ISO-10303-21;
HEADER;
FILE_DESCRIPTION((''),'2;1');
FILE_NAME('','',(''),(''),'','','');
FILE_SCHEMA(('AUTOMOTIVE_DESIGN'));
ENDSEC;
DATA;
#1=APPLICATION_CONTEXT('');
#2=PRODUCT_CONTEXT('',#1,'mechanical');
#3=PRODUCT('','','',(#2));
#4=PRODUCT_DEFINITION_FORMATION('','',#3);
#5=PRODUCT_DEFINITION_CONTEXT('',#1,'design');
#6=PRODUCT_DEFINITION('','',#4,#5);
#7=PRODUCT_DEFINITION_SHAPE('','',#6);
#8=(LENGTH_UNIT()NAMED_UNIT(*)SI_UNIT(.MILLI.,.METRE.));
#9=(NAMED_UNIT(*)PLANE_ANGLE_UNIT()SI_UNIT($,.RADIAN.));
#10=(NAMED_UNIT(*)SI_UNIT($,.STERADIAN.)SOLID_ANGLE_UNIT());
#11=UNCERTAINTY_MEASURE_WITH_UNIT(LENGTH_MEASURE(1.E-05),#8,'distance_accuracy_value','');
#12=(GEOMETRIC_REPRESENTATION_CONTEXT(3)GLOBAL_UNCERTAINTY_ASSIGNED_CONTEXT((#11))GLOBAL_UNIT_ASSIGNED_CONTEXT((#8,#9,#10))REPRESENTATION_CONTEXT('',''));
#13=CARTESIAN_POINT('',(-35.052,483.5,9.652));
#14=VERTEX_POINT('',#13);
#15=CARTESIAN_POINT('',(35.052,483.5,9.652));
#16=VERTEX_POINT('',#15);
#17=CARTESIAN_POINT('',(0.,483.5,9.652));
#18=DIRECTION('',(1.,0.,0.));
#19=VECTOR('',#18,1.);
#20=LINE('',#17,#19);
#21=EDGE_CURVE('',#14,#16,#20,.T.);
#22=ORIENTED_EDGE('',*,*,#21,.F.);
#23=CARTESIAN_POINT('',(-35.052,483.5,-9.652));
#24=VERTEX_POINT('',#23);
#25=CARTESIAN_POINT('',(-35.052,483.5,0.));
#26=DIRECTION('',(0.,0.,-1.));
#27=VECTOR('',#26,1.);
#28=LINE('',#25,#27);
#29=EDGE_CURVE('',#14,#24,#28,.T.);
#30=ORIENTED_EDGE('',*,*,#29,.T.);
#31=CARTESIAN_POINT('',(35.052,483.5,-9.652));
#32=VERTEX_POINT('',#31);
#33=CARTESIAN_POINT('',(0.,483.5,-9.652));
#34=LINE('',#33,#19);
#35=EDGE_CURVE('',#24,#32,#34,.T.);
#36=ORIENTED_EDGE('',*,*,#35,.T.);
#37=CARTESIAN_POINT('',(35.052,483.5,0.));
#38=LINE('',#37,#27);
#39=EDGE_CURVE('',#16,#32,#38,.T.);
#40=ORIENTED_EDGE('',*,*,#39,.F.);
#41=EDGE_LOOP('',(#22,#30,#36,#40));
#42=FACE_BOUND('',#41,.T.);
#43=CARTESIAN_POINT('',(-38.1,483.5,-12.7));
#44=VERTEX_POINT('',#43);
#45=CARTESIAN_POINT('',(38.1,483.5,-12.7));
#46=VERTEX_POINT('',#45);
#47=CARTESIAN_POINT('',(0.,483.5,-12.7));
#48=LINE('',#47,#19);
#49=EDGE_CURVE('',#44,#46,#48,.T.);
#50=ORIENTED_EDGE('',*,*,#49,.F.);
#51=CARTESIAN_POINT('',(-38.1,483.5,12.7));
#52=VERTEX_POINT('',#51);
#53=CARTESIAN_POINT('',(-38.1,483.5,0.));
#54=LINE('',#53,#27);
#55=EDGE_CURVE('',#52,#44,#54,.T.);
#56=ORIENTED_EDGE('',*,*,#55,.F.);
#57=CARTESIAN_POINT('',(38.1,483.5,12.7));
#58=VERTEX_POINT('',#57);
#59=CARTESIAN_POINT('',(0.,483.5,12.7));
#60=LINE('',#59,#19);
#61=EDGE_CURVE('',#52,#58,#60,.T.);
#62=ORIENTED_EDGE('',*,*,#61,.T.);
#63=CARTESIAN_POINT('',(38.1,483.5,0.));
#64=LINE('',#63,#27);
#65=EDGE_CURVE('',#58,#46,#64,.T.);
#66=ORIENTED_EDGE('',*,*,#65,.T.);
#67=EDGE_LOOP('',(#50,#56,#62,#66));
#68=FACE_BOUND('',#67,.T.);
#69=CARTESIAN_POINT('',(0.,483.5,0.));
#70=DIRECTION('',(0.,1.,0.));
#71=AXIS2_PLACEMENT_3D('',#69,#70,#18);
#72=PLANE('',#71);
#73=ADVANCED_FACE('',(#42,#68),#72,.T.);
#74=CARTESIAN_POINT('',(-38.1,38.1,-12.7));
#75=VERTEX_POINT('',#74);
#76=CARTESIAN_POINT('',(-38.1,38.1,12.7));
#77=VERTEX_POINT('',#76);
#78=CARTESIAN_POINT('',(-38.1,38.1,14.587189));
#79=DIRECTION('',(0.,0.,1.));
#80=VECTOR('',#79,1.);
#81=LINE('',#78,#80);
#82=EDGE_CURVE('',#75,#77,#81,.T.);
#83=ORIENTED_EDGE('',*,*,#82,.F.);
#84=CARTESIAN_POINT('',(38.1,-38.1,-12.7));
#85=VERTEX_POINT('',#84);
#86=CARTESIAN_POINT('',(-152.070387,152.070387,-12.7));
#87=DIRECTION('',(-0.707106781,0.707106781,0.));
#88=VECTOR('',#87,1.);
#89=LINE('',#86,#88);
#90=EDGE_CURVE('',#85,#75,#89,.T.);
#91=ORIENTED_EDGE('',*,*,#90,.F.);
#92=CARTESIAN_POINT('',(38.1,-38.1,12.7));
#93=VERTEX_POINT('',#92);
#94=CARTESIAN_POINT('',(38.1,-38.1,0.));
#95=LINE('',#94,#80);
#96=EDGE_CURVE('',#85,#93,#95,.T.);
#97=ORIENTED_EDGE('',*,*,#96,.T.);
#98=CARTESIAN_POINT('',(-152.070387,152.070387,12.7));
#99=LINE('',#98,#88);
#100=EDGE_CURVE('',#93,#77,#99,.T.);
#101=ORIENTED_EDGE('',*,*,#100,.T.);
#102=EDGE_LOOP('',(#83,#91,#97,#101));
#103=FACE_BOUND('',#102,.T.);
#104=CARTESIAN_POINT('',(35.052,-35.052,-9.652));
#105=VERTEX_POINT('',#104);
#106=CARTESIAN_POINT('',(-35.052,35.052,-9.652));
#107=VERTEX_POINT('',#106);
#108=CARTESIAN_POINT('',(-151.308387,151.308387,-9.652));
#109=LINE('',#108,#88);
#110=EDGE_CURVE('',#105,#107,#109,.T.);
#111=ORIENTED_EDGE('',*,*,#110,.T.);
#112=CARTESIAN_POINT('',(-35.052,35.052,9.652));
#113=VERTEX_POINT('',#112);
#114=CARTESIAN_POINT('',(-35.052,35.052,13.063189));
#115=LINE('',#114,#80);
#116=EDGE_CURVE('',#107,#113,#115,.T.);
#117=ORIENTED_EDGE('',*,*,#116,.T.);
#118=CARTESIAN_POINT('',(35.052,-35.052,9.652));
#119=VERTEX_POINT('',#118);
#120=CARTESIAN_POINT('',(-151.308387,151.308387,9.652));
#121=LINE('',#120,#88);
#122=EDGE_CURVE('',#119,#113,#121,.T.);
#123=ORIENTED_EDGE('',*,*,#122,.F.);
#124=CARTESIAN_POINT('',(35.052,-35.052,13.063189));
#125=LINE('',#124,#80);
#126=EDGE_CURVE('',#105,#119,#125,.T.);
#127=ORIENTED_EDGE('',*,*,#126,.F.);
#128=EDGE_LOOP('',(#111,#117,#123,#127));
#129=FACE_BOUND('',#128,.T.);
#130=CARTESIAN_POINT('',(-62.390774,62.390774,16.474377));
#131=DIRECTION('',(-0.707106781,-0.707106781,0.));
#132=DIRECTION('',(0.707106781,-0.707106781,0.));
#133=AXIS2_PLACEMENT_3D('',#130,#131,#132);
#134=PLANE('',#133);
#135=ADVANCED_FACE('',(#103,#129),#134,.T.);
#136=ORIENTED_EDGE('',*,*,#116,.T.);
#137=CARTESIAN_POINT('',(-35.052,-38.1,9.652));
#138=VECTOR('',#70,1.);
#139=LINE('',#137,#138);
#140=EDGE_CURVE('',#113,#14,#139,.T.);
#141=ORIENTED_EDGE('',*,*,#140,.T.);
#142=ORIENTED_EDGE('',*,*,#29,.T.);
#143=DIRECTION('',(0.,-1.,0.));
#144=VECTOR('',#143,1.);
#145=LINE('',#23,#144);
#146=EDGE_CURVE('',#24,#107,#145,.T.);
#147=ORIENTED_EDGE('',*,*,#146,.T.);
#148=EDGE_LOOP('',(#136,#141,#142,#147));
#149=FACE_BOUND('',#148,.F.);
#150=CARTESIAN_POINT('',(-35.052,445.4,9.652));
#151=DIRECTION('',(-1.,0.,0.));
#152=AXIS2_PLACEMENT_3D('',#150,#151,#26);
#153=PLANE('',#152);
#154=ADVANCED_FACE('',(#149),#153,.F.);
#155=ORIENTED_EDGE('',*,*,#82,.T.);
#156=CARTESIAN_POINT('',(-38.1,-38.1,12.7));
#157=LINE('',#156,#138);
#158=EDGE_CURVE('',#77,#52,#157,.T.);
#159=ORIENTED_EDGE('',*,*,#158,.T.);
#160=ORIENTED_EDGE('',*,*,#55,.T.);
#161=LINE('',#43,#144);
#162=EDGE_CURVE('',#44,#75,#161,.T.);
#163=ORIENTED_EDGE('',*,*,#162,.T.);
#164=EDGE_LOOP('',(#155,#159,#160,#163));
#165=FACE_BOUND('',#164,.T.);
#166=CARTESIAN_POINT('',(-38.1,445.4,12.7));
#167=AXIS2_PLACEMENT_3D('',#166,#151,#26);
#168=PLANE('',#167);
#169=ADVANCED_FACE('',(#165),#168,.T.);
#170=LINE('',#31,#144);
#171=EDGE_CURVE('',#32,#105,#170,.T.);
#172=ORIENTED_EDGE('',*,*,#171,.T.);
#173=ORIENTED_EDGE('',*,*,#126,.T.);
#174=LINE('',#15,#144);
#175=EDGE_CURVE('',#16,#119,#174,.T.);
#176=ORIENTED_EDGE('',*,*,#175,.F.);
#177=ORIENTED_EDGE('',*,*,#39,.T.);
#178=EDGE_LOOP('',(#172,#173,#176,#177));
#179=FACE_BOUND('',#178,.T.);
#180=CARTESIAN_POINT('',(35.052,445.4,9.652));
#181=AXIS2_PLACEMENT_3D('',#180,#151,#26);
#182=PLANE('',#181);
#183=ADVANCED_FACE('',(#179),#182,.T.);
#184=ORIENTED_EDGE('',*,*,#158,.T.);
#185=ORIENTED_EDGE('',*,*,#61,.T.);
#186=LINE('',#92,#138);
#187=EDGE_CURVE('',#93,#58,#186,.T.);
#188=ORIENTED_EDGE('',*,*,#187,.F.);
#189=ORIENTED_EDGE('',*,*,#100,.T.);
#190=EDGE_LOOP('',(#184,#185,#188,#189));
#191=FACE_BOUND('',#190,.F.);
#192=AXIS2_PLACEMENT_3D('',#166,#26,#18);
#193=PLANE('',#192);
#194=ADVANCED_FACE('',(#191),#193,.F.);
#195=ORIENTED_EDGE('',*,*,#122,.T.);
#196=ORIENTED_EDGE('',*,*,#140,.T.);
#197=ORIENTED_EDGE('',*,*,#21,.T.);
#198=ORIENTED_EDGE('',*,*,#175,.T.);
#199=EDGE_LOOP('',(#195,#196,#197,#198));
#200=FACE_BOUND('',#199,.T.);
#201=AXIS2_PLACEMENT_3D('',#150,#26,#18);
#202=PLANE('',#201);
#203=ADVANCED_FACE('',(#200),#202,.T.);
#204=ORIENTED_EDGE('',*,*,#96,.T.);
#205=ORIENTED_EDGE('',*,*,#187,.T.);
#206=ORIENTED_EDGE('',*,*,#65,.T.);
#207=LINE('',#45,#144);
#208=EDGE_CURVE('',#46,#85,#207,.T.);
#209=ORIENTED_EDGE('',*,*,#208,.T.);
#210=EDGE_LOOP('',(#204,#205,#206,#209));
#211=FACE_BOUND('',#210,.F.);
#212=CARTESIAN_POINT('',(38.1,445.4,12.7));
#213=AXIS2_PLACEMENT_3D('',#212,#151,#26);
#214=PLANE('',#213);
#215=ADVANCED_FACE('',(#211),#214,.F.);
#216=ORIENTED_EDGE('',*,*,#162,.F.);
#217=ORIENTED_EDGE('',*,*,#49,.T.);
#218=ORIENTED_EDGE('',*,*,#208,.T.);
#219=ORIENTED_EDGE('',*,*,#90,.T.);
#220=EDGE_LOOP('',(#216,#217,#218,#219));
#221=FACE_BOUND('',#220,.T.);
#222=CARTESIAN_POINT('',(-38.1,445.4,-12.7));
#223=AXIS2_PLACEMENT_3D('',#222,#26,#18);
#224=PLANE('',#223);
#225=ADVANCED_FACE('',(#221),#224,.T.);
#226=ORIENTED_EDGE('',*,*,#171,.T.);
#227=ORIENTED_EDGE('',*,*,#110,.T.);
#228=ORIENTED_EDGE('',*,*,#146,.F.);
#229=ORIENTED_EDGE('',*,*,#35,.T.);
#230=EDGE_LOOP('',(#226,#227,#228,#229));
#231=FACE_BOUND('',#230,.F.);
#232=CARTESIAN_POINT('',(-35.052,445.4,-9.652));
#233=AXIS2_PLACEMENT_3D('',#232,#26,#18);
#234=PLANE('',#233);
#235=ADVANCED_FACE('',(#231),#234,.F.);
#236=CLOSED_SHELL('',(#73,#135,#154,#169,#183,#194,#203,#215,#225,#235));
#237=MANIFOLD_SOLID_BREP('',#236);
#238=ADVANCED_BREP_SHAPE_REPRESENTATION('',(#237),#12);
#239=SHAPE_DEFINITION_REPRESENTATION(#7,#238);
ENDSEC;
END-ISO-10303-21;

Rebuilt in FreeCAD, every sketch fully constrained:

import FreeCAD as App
import Part
import Sketcher
Q = App.Units.Quantity


def add_polygon(sketch, points):
    """Adds a closed chain of lines whose ends are joined by coincident constraints."""
    first, n = sketch.GeometryCount, len(points)
    for a, b in zip(points, points[1:] + points[:1]):
        sketch.addGeometry(Part.LineSegment(App.Vector(*a, 0), App.Vector(*b, 0)), False)
    for i in range(n):
        sketch.addConstraint(Sketcher.Constraint("Coincident", first + i, 2, first + (i + 1) % n, 1))

doc = App.newDocument("Part")
body = doc.addObject("PartDesign::Body", "Body")

# Sketch on XZ plane
sketch1 = body.newObject("Sketcher::SketchObject", "Sketch")
sketch1.AttachmentSupport = (doc.getObject("XZ_Plane"), [""])
sketch1.MapMode = "FlatFace"
add_polygon(sketch1, [(-38, -13), (-38, 13), (38, 13), (38, -13)])  # lines 0-3
add_polygon(sketch1, [(35, 10), (-35, 10), (-35, -10), (35, -10)])  # lines 4-7
sketch1.addConstraint([
    Sketcher.Constraint("Vertical", 0),
    Sketcher.Constraint("Horizontal", 1),
    Sketcher.Constraint("Vertical", 2),
    Sketcher.Constraint("Horizontal", 3),
    Sketcher.Constraint("Horizontal", 4),
    Sketcher.Constraint("Vertical", 5),
    Sketcher.Constraint("Horizontal", 6),
    Sketcher.Constraint("Vertical", 7),
    Sketcher.Constraint("Symmetric", 0, 2, 2, 2, -1, 1),
    Sketcher.Constraint("Symmetric", 4, 2, 6, 2, -1, 1),
    Sketcher.Constraint("DistanceX", 1, 1, 1, 2, Q("3 in")),
    Sketcher.Constraint("DistanceY", 0, 1, 0, 2, Q("1 in")),
    Sketcher.Constraint("DistanceX", 4, 2, 4, 1, Q("2.76 in")),
    Sketcher.Constraint("DistanceY", 5, 2, 5, 1, Q("0.76 in")),
])
pad1 = body.newObject("PartDesign::Pad", "Pad")
pad1.Profile = sketch1
pad1.Length = 445.4
pad1.Reversed = True

# Sketch on XZ plane
sketch2 = body.newObject("Sketcher::SketchObject", "Sketch001")
sketch2.AttachmentSupport = (doc.getObject("XZ_Plane"), [""])
sketch2.MapMode = "FlatFace"
add_polygon(sketch2, [(-38, 13), (-38, -13), (38, -13), (38, 13)])  # lines 0-3
add_polygon(sketch2, [(35, -10), (-35, -10), (-35, 10), (35, 10)])  # lines 4-7
sketch2.addConstraint([
    Sketcher.Constraint("Vertical", 0),
    Sketcher.Constraint("Horizontal", 1),
    Sketcher.Constraint("Vertical", 2),
    Sketcher.Constraint("Horizontal", 3),
    Sketcher.Constraint("Horizontal", 4),
    Sketcher.Constraint("Vertical", 5),
    Sketcher.Constraint("Horizontal", 6),
    Sketcher.Constraint("Vertical", 7),
    Sketcher.Constraint("Symmetric", 0, 2, 2, 2, -1, 1),
    Sketcher.Constraint("Symmetric", 4, 2, 6, 2, -1, 1),
    Sketcher.Constraint("DistanceX", 1, 1, 1, 2, Q("3 in")),
    Sketcher.Constraint("DistanceY", 0, 2, 0, 1, Q("1 in")),
    Sketcher.Constraint("DistanceX", 4, 2, 4, 1, Q("2.76 in")),
    Sketcher.Constraint("DistanceY", 5, 1, 5, 2, Q("0.76 in")),
])
pad2 = body.newObject("PartDesign::Pad", "Pad001")
pad2.Profile = sketch2
pad2.Length = Q("1.5 in")

# Sketch on XZ plane
sketch3 = body.newObject("Sketcher::SketchObject", "Sketch002")
sketch3.AttachmentSupport = (doc.getObject("XZ_Plane"), [""])
sketch3.MapMode = "FlatFace"
sketch3.AttachmentOffset = App.Placement(App.Vector(0, 0, -445.4), App.Rotation())
add_polygon(sketch3, [(-38, -13), (-38, 13), (38, 13), (38, -13)])  # lines 0-3
add_polygon(sketch3, [(35, 10), (-35, 10), (-35, -10), (35, -10)])  # lines 4-7
sketch3.addConstraint([
    Sketcher.Constraint("Vertical", 0),
    Sketcher.Constraint("Horizontal", 1),
    Sketcher.Constraint("Vertical", 2),
    Sketcher.Constraint("Horizontal", 3),
    Sketcher.Constraint("Horizontal", 4),
    Sketcher.Constraint("Vertical", 5),
    Sketcher.Constraint("Horizontal", 6),
    Sketcher.Constraint("Vertical", 7),
    Sketcher.Constraint("Symmetric", 0, 2, 2, 2, -1, 1),
    Sketcher.Constraint("Symmetric", 4, 2, 6, 2, -1, 1),
    Sketcher.Constraint("DistanceX", 1, 1, 1, 2, Q("3 in")),
    Sketcher.Constraint("DistanceY", 0, 1, 0, 2, Q("1 in")),
    Sketcher.Constraint("DistanceX", 4, 2, 4, 1, Q("2.76 in")),
    Sketcher.Constraint("DistanceY", 5, 2, 5, 1, Q("0.76 in")),
])
pad3 = body.newObject("PartDesign::Pad", "Pad002")
pad3.Profile = sketch3
pad3.Length = Q("1.5 in")
pad3.Reversed = True

# Sketch on XY plane
sketch4 = body.newObject("Sketcher::SketchObject", "Sketch003")
sketch4.AttachmentSupport = (doc.getObject("XY_Plane"), [""])
sketch4.MapMode = "FlatFace"
sketch4.AttachmentOffset = App.Placement(App.Vector(0, 0, 16.474377), App.Rotation())
add_polygon(sketch4, [(130, -130), (-62, 62), (-159, -130)])  # lines 0-2
sketch4.addConstraint([
    Sketcher.Constraint("Horizontal", 2),
    Sketcher.Constraint("Angle", 0, Q("135 deg")),
    Sketcher.Constraint("DistanceX", 2, 1, 2, 2, Q("288.55552 mm")),
    Sketcher.Constraint("Distance", 0, Q("271.969871 mm")),
    Sketcher.Constraint("DistanceX", 0, 2, -1, 1, Q("62.390774 mm")),
    Sketcher.Constraint("DistanceY", -1, 1, 0, 2, Q("62.390774 mm")),
])
pocket1 = body.newObject("PartDesign::Pocket", "Pocket")
pocket1.Profile = sketch4
pocket1.Type = "ThroughAll"
pocket1.Midplane = True

doc.recompute()
